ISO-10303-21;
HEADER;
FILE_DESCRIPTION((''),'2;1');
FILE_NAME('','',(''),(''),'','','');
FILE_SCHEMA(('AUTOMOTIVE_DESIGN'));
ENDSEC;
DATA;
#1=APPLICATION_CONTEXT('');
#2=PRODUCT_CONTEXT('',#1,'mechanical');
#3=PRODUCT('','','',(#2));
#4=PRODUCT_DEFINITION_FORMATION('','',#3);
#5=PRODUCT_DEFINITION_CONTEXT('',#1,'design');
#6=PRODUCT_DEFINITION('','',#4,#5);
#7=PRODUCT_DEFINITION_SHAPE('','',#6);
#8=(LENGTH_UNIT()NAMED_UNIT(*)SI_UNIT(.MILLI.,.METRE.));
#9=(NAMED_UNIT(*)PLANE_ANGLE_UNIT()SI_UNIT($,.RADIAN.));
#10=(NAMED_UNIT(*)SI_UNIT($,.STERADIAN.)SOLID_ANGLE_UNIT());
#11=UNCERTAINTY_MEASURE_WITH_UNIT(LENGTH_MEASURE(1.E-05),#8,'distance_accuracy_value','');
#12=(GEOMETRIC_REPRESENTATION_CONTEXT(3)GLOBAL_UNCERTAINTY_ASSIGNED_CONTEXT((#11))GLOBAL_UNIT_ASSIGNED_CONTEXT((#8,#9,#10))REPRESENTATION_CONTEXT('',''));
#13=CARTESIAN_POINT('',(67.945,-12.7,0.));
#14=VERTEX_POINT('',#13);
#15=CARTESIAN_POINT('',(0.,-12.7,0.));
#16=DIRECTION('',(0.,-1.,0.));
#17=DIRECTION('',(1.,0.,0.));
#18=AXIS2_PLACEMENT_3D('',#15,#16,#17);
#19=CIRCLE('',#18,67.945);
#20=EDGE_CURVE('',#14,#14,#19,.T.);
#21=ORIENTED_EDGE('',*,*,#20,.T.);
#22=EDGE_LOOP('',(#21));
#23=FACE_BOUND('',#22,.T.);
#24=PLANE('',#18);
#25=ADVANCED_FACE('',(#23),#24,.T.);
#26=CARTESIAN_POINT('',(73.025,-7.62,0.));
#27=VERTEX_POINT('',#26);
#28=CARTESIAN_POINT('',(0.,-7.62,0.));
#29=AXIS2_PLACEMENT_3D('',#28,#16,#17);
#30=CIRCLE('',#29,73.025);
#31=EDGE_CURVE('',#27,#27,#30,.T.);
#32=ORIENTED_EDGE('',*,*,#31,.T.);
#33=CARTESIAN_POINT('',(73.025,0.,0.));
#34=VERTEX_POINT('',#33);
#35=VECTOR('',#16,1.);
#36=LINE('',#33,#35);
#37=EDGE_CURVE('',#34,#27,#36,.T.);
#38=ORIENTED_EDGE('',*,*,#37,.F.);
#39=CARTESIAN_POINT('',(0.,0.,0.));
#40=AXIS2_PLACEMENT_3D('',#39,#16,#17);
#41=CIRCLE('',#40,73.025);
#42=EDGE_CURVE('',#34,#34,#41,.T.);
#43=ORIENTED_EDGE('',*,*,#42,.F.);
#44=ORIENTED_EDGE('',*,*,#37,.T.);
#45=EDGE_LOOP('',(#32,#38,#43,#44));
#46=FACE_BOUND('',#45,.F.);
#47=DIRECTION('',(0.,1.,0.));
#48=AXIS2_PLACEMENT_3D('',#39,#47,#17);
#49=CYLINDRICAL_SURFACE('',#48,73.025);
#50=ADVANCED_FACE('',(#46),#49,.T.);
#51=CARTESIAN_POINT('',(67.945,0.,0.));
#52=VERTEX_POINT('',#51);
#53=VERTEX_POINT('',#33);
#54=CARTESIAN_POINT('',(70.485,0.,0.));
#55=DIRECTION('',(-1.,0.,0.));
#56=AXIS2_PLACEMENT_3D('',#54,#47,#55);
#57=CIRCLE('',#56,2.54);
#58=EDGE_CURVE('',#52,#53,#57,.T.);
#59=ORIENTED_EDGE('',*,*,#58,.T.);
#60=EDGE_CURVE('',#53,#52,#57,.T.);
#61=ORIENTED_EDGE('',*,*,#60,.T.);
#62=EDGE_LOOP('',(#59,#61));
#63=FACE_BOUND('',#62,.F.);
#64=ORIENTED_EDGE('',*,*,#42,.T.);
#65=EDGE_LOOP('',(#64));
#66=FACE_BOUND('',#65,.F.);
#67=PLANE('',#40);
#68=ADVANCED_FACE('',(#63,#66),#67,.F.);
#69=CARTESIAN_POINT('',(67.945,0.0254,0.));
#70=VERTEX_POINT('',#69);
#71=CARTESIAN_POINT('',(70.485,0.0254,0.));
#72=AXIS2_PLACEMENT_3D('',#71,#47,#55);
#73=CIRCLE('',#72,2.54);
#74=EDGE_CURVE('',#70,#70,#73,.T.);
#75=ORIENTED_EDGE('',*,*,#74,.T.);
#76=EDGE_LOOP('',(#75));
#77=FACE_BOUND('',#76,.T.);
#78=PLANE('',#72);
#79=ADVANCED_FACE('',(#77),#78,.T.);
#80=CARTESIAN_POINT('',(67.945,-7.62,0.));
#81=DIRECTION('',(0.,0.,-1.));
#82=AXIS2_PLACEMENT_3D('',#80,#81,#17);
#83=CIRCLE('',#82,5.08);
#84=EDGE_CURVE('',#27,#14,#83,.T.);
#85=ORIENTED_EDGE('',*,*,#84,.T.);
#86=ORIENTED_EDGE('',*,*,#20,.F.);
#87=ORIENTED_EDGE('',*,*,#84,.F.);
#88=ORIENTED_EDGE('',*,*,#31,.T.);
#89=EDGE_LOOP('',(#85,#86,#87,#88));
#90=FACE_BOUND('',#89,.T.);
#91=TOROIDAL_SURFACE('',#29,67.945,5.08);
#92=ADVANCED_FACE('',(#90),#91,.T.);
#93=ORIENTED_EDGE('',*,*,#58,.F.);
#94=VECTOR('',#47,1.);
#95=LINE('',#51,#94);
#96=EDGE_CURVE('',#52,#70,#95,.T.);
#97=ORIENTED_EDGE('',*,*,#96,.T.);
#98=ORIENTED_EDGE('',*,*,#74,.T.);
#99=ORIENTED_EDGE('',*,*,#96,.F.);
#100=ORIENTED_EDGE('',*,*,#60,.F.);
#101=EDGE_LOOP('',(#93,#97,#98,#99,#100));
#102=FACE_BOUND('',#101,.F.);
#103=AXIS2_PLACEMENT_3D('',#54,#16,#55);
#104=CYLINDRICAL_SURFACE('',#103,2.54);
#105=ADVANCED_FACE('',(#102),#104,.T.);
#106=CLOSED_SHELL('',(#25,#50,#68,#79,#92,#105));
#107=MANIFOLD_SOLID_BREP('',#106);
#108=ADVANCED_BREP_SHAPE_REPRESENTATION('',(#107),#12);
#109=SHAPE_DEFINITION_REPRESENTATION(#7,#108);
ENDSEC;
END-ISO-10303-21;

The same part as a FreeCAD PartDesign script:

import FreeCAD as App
import Part
import Sketcher

V = App.Vector
Q = App.Units.Quantity


def edges_at(feature, points):
    """Names of the edges that pass closest to the given points."""
    edges = feature.Shape.Edges
    near = lambda p: min(range(len(edges)), key=lambda i: edges[i].distToShape(Part.Vertex(*p))[0])
    return sorted({f"Edge{near(p) + 1}" for p in points})

doc = App.newDocument("Part")
params = doc.addObject("Spreadsheet::Sheet", "Params")
for row, (alias, value) in enumerate([
    ("sketch1_diameter", "5.75 in"),
    ("pad1_length", "0.5 in"),
    ("fillet_radius", "0.2 in"),
    ("sketch2_diameter", "0.2 in"),
    ("pad2_length", "0.001 in"),
], start=1):
    params.set(f"A{row}", alias)
    params.set(f"B{row}", "=" + value)
    params.setAlias(f"B{row}", alias)

body = doc.addObject("PartDesign::Body", "Body")

# Sketch on XZ plane
sketch1 = body.newObject("Sketcher::SketchObject", "Sketch")
sketch1.AttachmentSupport = (doc.getObject("XZ_Plane"), [""])
sketch1.MapMode = "FlatFace"
sketch1.addGeometry(Part.Circle(V(0, 0, 0), V(0, 0, 1), 73), False)
sketch1.addConstraint([
    Sketcher.Constraint("Coincident", 0, 3, -1, 1),
    Sketcher.Constraint("Diameter", 0, Q("5.75 in")),
])
sketch1.setExpression("Constraints[1]", "Params.sketch1_diameter")
pad1 = body.newObject("PartDesign::Pad", "Pad")
pad1.Profile = sketch1
pad1.setExpression("Length", "Params.pad1_length")
doc.recompute()

fillet = body.newObject("PartDesign::Fillet", "Fillet")
fillet.Base = (pad1, edges_at(pad1, [(-73.025, -12.7, 0)]))
fillet.setExpression("Radius", "Params.fillet_radius")

# Sketch on XZ plane
sketch2 = body.newObject("Sketcher::SketchObject", "Sketch001")
sketch2.AttachmentSupport = (doc.getObject("XZ_Plane"), [""])
sketch2.MapMode = "FlatFace"
sketch2.addGeometry(Part.Circle(V(70.5, 0, 0), V(0, 0, 1), 2.5), False)
sketch2.addConstraint([
    Sketcher.Constraint("PointOnObject", 0, 3, -1),
    Sketcher.Constraint("Diameter", 0, Q("0.2 in")),
    Sketcher.Constraint("DistanceX", -1, 1, 0, 3, Q("2.775 in")),
])
sketch2.setExpression("Constraints[1]", "Params.sketch2_diameter")
pad2 = body.newObject("PartDesign::Pad", "Pad001")
pad2.Profile = sketch2
pad2.setExpression("Length", "Params.pad2_length")
pad2.Reversed = True

doc.recompute()
